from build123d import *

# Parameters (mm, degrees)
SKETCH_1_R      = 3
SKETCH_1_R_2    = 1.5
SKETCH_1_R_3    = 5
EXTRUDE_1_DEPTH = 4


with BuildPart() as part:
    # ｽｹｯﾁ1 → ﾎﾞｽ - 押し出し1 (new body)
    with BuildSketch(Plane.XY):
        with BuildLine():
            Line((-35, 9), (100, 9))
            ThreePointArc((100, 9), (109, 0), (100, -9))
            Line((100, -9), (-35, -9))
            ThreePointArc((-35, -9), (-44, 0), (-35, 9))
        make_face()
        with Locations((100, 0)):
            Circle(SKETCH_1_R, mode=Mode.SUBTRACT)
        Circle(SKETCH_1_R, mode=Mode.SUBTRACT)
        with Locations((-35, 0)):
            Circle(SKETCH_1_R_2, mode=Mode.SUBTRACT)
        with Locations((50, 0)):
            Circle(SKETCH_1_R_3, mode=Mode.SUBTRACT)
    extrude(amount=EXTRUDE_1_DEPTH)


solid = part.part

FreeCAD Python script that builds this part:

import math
import FreeCAD as App
import Part
import Sketcher
from FreeCAD import Vector

doc = App.newDocument("Part")
params = doc.addObject("Spreadsheet::Sheet", "Params")
for row, (alias, value) in enumerate([
    ("sketch1_diameter", "6 mm"),
    ("sketch1_diameter2", "10 mm"),
    ("sketch1_diameter3", "3 mm"),
    ("sketch1_radius", "9 mm"),
    ("sketch1_width", "135 mm"),
    ("pad1_length", "4 mm"),
], start=1):
    params.set(f"A{row}", alias)
    params.set(f"B{row}", "=" + value)
    params.setAlias(f"B{row}", alias)

body = doc.addObject("PartDesign::Body", "Body")

# Sketch on XY plane
sketch1 = body.newObject("Sketcher::SketchObject", "Sketch")
sketch1.AttachmentSupport = (doc.getObject("XY_Plane"), [""])
sketch1.MapMode = "FlatFace"
sketch1.addGeometry([
    Part.LineSegment(Vector(100, 9, 0), Vector(-35, 9, 0)),  # 0
    Part.ArcOfCircle(Part.Circle(Vector(-35, 0, 0), Vector(0, 0, 1), 9), math.radians(90), math.radians(270)),  # 1
    Part.LineSegment(Vector(-35, -9, 0), Vector(100, -9, 0)),  # 2
    Part.ArcOfCircle(Part.Circle(Vector(100, 0, 0), Vector(0, 0, 1), 9), math.radians(-90), math.radians(90)),  # 3
    Part.Circle(Vector(100, 0, 0), Vector(0, 0, 1), 3),  # 4
    Part.Circle(Vector(50, 0, 0), Vector(0, 0, 1), 5),  # 5
    Part.Circle(Vector(0, 0, 0), Vector(0, 0, 1), 3),  # 6
    Part.Circle(Vector(-35, 0, 0), Vector(0, 0, 1), 1.5),  # 7
], False)
sketch1.addConstraint([
    Sketcher.Constraint("Tangent", 0, 2, 1, 1),
    Sketcher.Constraint("Tangent", 1, 2, 2, 1),
    Sketcher.Constraint("Tangent", 2, 2, 3, 1),
    Sketcher.Constraint("Tangent", 3, 2, 0, 1),
    Sketcher.Constraint("Horizontal", 0),
    Sketcher.Constraint("Horizontal", 2),
    Sketcher.Constraint("Coincident", 6, 3, -1, 1),
    Sketcher.Constraint("Coincident", 4, 3, 3, 3),
    Sketcher.Constraint("Coincident", 7, 3, 1, 3),
    Sketcher.Constraint("Equal", 4, 6),
    Sketcher.Constraint("PointOnObject", 1, 3, -1),
    Sketcher.Constraint("PointOnObject", 5, 3, -1),
    Sketcher.Constraint("Diameter", 4, 6.0),
    Sketcher.Constraint("Diameter", 5, 10.0),
    Sketcher.Constraint("Diameter", 7, 3.0),
    Sketcher.Constraint("Radius", 1, 9.0),
    Sketcher.Constraint("DistanceX", 0, 2, 0, 1, 135.0),
    Sketcher.Constraint("DistanceX", 1, 3, -1, 1, 35.0),
    Sketcher.Constraint("DistanceX", -1, 1, 5, 3, 50.0),
])
sketch1.setExpression("Constraints[12]", "Params.sketch1_diameter")
sketch1.setExpression("Constraints[13]", "Params.sketch1_diameter2")
sketch1.setExpression("Constraints[14]", "Params.sketch1_diameter3")
sketch1.setExpression("Constraints[15]", "Params.sketch1_radius")
sketch1.setExpression("Constraints[16]", "Params.sketch1_width")
pad1 = body.newObject("PartDesign::Pad", "Pad")
pad1.Profile = sketch1
pad1.setExpression("Length", "Params.pad1_length")

doc.recompute()
